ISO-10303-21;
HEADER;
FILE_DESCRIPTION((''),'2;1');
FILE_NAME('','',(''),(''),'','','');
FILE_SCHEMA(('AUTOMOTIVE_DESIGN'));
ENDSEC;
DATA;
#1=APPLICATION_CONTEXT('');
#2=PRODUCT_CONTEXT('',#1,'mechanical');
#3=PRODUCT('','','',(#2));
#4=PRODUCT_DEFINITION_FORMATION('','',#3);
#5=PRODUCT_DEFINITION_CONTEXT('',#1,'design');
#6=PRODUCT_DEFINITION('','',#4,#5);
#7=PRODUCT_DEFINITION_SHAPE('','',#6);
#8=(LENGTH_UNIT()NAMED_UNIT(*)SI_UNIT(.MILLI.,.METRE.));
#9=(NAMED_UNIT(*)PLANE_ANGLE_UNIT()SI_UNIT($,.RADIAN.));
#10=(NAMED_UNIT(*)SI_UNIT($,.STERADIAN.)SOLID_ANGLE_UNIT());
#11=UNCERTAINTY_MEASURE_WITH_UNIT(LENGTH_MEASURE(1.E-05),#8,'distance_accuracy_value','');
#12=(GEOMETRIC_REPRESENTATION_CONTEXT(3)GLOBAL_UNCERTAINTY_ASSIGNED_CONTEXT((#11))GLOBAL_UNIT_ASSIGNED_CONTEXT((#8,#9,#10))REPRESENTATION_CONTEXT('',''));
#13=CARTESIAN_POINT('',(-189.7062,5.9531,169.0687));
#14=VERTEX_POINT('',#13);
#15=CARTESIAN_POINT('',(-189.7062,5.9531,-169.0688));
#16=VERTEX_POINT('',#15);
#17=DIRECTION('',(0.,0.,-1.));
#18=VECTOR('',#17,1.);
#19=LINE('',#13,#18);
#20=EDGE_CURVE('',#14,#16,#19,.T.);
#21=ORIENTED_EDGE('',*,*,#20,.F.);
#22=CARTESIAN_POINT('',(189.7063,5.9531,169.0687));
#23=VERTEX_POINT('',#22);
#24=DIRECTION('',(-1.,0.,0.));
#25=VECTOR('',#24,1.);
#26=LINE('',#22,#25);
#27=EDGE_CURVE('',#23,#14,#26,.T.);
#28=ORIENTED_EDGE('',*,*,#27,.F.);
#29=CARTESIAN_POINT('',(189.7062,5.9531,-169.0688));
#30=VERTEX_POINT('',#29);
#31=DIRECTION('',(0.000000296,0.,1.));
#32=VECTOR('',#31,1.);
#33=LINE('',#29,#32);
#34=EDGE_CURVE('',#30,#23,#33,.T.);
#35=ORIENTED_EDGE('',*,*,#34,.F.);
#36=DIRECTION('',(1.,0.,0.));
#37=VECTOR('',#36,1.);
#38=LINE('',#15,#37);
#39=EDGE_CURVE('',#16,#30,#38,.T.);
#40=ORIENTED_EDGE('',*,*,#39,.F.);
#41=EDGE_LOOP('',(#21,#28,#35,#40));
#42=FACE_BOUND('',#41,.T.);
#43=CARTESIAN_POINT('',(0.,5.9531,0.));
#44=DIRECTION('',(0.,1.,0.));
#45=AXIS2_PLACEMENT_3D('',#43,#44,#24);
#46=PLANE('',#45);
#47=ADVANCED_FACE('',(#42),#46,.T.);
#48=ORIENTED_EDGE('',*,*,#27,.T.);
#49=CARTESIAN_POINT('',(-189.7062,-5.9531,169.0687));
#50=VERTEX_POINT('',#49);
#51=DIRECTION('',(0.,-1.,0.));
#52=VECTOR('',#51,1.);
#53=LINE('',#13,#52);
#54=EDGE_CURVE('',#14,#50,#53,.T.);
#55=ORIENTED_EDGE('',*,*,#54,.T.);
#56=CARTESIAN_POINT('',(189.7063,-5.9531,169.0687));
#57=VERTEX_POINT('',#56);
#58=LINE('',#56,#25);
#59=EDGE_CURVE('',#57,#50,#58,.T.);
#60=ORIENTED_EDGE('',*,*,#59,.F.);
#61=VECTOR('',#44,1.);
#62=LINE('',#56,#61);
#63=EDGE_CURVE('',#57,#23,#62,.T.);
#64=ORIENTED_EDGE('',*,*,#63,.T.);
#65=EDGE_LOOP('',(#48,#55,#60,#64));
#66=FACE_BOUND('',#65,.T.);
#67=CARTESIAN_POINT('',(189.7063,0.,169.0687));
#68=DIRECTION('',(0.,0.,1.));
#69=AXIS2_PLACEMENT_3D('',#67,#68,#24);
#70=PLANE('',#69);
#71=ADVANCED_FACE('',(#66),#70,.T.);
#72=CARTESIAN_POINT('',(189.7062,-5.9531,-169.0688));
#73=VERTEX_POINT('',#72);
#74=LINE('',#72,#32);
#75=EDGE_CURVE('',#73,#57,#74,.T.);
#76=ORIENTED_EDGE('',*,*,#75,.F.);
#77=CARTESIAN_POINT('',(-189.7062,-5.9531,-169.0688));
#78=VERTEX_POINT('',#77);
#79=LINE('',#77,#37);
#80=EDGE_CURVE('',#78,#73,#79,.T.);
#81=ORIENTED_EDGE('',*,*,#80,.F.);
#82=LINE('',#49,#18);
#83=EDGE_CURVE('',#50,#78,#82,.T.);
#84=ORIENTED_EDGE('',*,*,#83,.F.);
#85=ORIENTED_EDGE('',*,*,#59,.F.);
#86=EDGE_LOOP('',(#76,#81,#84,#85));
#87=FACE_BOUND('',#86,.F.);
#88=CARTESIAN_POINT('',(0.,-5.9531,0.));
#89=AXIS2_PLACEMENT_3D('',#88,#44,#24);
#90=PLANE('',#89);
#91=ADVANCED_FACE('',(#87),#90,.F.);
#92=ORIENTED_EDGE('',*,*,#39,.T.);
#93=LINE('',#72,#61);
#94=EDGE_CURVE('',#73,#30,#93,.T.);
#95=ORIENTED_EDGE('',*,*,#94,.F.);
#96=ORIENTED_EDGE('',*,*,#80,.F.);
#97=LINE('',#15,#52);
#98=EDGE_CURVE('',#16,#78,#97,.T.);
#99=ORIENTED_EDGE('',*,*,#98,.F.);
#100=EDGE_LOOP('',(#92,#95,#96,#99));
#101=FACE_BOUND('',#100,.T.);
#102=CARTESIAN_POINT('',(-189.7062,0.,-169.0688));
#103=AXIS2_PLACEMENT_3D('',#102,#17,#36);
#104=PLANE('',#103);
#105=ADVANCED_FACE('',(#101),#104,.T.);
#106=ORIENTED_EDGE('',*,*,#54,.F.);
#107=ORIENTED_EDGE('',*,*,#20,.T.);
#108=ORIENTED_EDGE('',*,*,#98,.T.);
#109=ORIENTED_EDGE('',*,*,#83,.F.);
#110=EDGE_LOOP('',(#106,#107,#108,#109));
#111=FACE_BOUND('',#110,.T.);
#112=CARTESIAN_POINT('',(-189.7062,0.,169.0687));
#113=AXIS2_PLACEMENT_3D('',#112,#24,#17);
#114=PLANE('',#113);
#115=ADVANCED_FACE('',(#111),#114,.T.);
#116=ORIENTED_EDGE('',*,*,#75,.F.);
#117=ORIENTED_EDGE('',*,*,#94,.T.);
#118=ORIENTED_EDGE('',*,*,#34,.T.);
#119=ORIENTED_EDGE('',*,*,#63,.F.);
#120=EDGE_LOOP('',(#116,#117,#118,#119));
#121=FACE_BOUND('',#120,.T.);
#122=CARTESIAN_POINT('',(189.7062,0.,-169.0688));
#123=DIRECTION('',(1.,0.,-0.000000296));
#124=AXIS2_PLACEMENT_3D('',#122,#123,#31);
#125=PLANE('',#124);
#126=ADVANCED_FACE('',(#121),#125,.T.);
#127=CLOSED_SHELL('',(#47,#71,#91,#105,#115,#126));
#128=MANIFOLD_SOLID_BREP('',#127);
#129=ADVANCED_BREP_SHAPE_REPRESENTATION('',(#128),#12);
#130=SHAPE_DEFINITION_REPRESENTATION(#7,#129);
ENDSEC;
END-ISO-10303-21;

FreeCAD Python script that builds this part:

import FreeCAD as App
import Part
import Sketcher

V = App.Vector
Q = App.Units.Quantity

doc = App.newDocument("Part")
params = doc.addObject("Spreadsheet::Sheet", "Params")
for row, (alias, value) in enumerate([
    ("sketch1_width", "14.9375 in"),
    ("sketch1_height", "13.3125 in"),
    ("pad1_length", "0.468748 in"),
], start=1):
    params.set(f"A{row}", alias)
    params.set(f"B{row}", "=" + value)
    params.setAlias(f"B{row}", alias)

body = doc.addObject("PartDesign::Body", "Body")

sketch1 = body.newObject("Sketcher::SketchObject", "Sketch")
sketch1.AttachmentSupport = (doc.getObject("XZ_Plane"), [""])
sketch1.MapMode = "FlatFace"
sketch1.addGeometry([
    Part.LineSegment(V(-190, 169, 0), V(190, 169, 0)),
    Part.LineSegment(V(190, 169, 0), V(190, -169, 0)),
    Part.LineSegment(V(190, -169, 0), V(-190, -169, 0)),
    Part.LineSegment(V(-190, -169, 0), V(-190, 169, 0)),
], False)
sketch1.addConstraint([
    Sketcher.Constraint("Coincident", 0, 2, 1, 1),
    Sketcher.Constraint("Coincident", 1, 2, 2, 1),
    Sketcher.Constraint("Coincident", 2, 2, 3, 1),
    Sketcher.Constraint("Coincident", 3, 2, 0, 1),
    Sketcher.Constraint("Horizontal", 0),
    Sketcher.Constraint("Vertical", 1),
    Sketcher.Constraint("Horizontal", 2),
    Sketcher.Constraint("Vertical", 3),
    Sketcher.Constraint("Symmetric", 0, 2, 2, 2, -1, 1),
    Sketcher.Constraint("DistanceX", 0, 1, 0, 2, Q("14.9375 in")),
    Sketcher.Constraint("DistanceY", 1, 2, 1, 1, Q("13.3125 in")),
])
sketch1.setExpression("Constraints[9]", "Params.sketch1_width")
sketch1.setExpression("Constraints[10]", "Params.sketch1_height")
pad1 = body.newObject("PartDesign::Pad", "Pad")
pad1.Profile = sketch1
pad1.setExpression("Length", "Params.pad1_length")
pad1.Midplane = True

doc.recompute()
